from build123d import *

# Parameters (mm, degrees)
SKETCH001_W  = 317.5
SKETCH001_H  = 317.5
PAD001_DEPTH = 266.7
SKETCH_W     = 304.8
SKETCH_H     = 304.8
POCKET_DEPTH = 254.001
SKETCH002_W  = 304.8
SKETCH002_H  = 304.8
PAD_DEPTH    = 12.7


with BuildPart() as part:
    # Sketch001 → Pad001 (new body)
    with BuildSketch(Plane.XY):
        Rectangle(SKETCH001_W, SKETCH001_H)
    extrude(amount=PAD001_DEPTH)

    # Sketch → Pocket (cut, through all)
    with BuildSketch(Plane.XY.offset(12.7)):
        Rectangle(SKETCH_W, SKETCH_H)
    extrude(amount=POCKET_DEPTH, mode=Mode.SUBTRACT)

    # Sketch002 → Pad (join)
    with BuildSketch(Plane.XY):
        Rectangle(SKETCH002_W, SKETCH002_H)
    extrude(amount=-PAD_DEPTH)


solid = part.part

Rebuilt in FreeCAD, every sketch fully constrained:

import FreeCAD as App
import Part
import Sketcher

V = App.Vector
Q = App.Units.Quantity

doc = App.newDocument("Part")
params = doc.addObject("Spreadsheet::Sheet", "Params")
for row, (alias, value) in enumerate([
    ("sketch1_width", "12.5 in"),
    ("pad1_length", "10.5 in"),
    ("sketch2_width", "12 in"),
    ("sketch3_width", "12 in"),
    ("pad2_length", "0.5 in"),
], start=1):
    params.set(f"A{row}", alias)
    params.set(f"B{row}", "=" + value)
    params.setAlias(f"B{row}", alias)

body = doc.addObject("PartDesign::Body", "Body")

# Sketch on XY plane
sketch1 = body.newObject("Sketcher::SketchObject", "Sketch")
sketch1.AttachmentSupport = (doc.getObject("XY_Plane"), [""])
sketch1.MapMode = "FlatFace"
sketch1.addGeometry([
    Part.LineSegment(V(-159, 159, 0), V(-159, -159, 0)),
    Part.LineSegment(V(-159, -159, 0), V(159, -159, 0)),
    Part.LineSegment(V(159, -159, 0), V(159, 159, 0)),
    Part.LineSegment(V(159, 159, 0), V(-159, 159, 0)),
], False)
sketch1.addConstraint([
    Sketcher.Constraint("Coincident", 0, 2, 1, 1),
    Sketcher.Constraint("Coincident", 1, 2, 2, 1),
    Sketcher.Constraint("Coincident", 2, 2, 3, 1),
    Sketcher.Constraint("Coincident", 3, 2, 0, 1),
    Sketcher.Constraint("Vertical", 0),
    Sketcher.Constraint("Horizontal", 1),
    Sketcher.Constraint("Vertical", 2),
    Sketcher.Constraint("Horizontal", 3),
    Sketcher.Constraint("Symmetric", 0, 2, 2, 2, -1, 1),
    Sketcher.Constraint("Equal", 3, 0),
    Sketcher.Constraint("DistanceX", 1, 1, 1, 2, Q("12.5 in")),
])
sketch1.setExpression("Constraints[10]", "Params.sketch1_width")
pad1 = body.newObject("PartDesign::Pad", "Pad")
pad1.Profile = sketch1
pad1.setExpression("Length", "Params.pad1_length")

# Sketch on XY plane
sketch2 = body.newObject("Sketcher::SketchObject", "Sketch001")
sketch2.AttachmentSupport = (doc.getObject("XY_Plane"), [""])
sketch2.MapMode = "FlatFace"
sketch2.AttachmentOffset = App.Placement(V(0, 0, 0.5 * 25.4), App.Rotation())
sketch2.addGeometry([
    Part.LineSegment(V(-152, 152, 0), V(-152, -152, 0)),
    Part.LineSegment(V(-152, -152, 0), V(152, -152, 0)),
    Part.LineSegment(V(152, -152, 0), V(152, 152, 0)),
    Part.LineSegment(V(152, 152, 0), V(-152, 152, 0)),
], False)
sketch2.addConstraint([
    Sketcher.Constraint("Coincident", 0, 2, 1, 1),
    Sketcher.Constraint("Coincident", 1, 2, 2, 1),
    Sketcher.Constraint("Coincident", 2, 2, 3, 1),
    Sketcher.Constraint("Coincident", 3, 2, 0, 1),
    Sketcher.Constraint("Vertical", 0),
    Sketcher.Constraint("Horizontal", 1),
    Sketcher.Constraint("Vertical", 2),
    Sketcher.Constraint("Horizontal", 3),
    Sketcher.Constraint("Symmetric", 0, 2, 2, 2, -1, 1),
    Sketcher.Constraint("Equal", 3, 0),
    Sketcher.Constraint("DistanceX", 1, 1, 1, 2, Q("12 in")),
])
sketch2.setExpression("Constraints[10]", "Params.sketch2_width")
pocket1 = body.newObject("PartDesign::Pocket", "Pocket")
pocket1.Profile = sketch2
pocket1.Type = "ThroughAll"
pocket1.Reversed = True

# Sketch on XY plane
sketch3 = body.newObject("Sketcher::SketchObject", "Sketch002")
sketch3.AttachmentSupport = (doc.getObject("XY_Plane"), [""])
sketch3.MapMode = "FlatFace"
sketch3.addGeometry([
    Part.LineSegment(V(-152, 152, 0), V(-152, -152, 0)),
    Part.LineSegment(V(-152, -152, 0), V(152, -152, 0)),
    Part.LineSegment(V(152, -152, 0), V(152, 152, 0)),
    Part.LineSegment(V(152, 152, 0), V(-152, 152, 0)),
], False)
sketch3.addConstraint([
    Sketcher.Constraint("Coincident", 0, 2, 1, 1),
    Sketcher.Constraint("Coincident", 1, 2, 2, 1),
    Sketcher.Constraint("Coincident", 2, 2, 3, 1),
    Sketcher.Constraint("Coincident", 3, 2, 0, 1),
    Sketcher.Constraint("Vertical", 0),
    Sketcher.Constraint("Horizontal", 1),
    Sketcher.Constraint("Vertical", 2),
    Sketcher.Constraint("Horizontal", 3),
    Sketcher.Constraint("Symmetric", 0, 2, 2, 2, -1, 1),
    Sketcher.Constraint("Equal", 3, 0),
    Sketcher.Constraint("DistanceX", 1, 1, 1, 2, Q("12 in")),
])
sketch3.setExpression("Constraints[10]", "Params.sketch3_width")
pad2 = body.newObject("PartDesign::Pad", "Pad001")
pad2.Profile = sketch3
pad2.setExpression("Length", "Params.pad2_length")
pad2.Reversed = True

doc.recompute()
